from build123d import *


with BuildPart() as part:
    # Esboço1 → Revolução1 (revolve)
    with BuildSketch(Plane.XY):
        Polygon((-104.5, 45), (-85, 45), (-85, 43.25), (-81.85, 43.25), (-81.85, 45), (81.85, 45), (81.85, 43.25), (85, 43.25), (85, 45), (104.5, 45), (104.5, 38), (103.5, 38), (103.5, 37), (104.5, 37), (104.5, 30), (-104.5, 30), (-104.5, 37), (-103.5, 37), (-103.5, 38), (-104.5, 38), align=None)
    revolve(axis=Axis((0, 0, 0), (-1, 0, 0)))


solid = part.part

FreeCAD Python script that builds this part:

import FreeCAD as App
import Part
import Sketcher
from FreeCAD import Vector


def add_polygon(sketch, points):
    """Adds a closed chain of lines whose ends are joined by coincident constraints."""
    first, n = sketch.GeometryCount, len(points)
    for a, b in zip(points, points[1:] + points[:1]):
        sketch.addGeometry(Part.LineSegment(App.Vector(*a, 0), App.Vector(*b, 0)), False)
    for i in range(n):
        sketch.addConstraint(Sketcher.Constraint("Coincident", first + i, 2, first + (i + 1) % n, 1))

doc = App.newDocument("Part")
body = doc.addObject("PartDesign::Body", "Body")

# Sketch on XY plane
sketch1 = doc.addObject("Sketcher::SketchObject", "Sketch")
body.addObject(sketch1)
sketch1.AttachmentSupport = (doc.XY_Plane, [""])
sketch1.MapMode = "FlatFace"
add_polygon(sketch1, [(-85, 45), (-104.5, 45), (-104.5, 38), (-103.5, 38), (-103.5, 37), (-104.5, 37), (-104.5, 30), (104.5, 30), (104.5, 37), (103.5, 37), (103.5, 38), (104.5, 38), (104.5, 45), (85, 45), (85, 43.2), (81.8, 43.2), (81.8, 45), (-81.8, 45), (-81.8, 43.2), (-85, 43.2)])  # lines 0-19
sketch1.addConstraint([
    Sketcher.Constraint("Horizontal", 0),
    Sketcher.Constraint("Vertical", 1),
    Sketcher.Constraint("Horizontal", 2),
    Sketcher.Constraint("Vertical", 3),
    Sketcher.Constraint("Horizontal", 4),
    Sketcher.Constraint("Vertical", 5),
    Sketcher.Constraint("Horizontal", 6),
    Sketcher.Constraint("Vertical", 7),
    Sketcher.Constraint("Horizontal", 8),
    Sketcher.Constraint("Vertical", 9),
    Sketcher.Constraint("Horizontal", 10),
    Sketcher.Constraint("Vertical", 11),
    Sketcher.Constraint("Horizontal", 12),
    Sketcher.Constraint("Vertical", 13),
    Sketcher.Constraint("Horizontal", 14),
    Sketcher.Constraint("Vertical", 15),
    Sketcher.Constraint("Horizontal", 16),
    Sketcher.Constraint("Vertical", 17),
    Sketcher.Constraint("Horizontal", 18),
    Sketcher.Constraint("Vertical", 19),
    Sketcher.Constraint("Symmetric", 4, 2, 7, 2, -2),
    Sketcher.Constraint("Symmetric", 2, 2, 9, 2, -2),
    Sketcher.Constraint("Symmetric", 0, 2, 11, 2, -2),
    Sketcher.Constraint("Symmetric", 14, 2, 17, 2, -2),
    Sketcher.Constraint("Horizontal", 12, 2, 15, 2),
    Sketcher.Constraint("Vertical", 1, 2, 4, 2),
    Sketcher.Constraint("Equal", 0, 12),
    Sketcher.Constraint("Equal", 10, 3),
    Sketcher.Constraint("Equal", 1, 5),
    Sketcher.Constraint("DistanceX", 2, 1, 2, 2, 1.0),
    Sketcher.Constraint("DistanceX", 6, 1, 6, 2, 209.0),
    Sketcher.Constraint("DistanceY", 1, 2, 1, 1, 7.0),
    Sketcher.Constraint("DistanceX", 0, 2, 0, 1, 19.5),
    Sketcher.Constraint("DistanceX", 16, 2, 16, 1, 163.7),
    Sketcher.Constraint("DistanceY", -1, 1, 0, 2, 45.0),
    Sketcher.Constraint("DistanceY", 13, 2, 13, 1, 1.75),
])
revolution = doc.addObject("PartDesign::Revolution", "Revolution")
body.addObject(revolution)
revolution.Profile = sketch1
revolution.ReferenceAxis = (sketch1, ["H_Axis"])
revolution.Angle = 360

doc.recompute()
